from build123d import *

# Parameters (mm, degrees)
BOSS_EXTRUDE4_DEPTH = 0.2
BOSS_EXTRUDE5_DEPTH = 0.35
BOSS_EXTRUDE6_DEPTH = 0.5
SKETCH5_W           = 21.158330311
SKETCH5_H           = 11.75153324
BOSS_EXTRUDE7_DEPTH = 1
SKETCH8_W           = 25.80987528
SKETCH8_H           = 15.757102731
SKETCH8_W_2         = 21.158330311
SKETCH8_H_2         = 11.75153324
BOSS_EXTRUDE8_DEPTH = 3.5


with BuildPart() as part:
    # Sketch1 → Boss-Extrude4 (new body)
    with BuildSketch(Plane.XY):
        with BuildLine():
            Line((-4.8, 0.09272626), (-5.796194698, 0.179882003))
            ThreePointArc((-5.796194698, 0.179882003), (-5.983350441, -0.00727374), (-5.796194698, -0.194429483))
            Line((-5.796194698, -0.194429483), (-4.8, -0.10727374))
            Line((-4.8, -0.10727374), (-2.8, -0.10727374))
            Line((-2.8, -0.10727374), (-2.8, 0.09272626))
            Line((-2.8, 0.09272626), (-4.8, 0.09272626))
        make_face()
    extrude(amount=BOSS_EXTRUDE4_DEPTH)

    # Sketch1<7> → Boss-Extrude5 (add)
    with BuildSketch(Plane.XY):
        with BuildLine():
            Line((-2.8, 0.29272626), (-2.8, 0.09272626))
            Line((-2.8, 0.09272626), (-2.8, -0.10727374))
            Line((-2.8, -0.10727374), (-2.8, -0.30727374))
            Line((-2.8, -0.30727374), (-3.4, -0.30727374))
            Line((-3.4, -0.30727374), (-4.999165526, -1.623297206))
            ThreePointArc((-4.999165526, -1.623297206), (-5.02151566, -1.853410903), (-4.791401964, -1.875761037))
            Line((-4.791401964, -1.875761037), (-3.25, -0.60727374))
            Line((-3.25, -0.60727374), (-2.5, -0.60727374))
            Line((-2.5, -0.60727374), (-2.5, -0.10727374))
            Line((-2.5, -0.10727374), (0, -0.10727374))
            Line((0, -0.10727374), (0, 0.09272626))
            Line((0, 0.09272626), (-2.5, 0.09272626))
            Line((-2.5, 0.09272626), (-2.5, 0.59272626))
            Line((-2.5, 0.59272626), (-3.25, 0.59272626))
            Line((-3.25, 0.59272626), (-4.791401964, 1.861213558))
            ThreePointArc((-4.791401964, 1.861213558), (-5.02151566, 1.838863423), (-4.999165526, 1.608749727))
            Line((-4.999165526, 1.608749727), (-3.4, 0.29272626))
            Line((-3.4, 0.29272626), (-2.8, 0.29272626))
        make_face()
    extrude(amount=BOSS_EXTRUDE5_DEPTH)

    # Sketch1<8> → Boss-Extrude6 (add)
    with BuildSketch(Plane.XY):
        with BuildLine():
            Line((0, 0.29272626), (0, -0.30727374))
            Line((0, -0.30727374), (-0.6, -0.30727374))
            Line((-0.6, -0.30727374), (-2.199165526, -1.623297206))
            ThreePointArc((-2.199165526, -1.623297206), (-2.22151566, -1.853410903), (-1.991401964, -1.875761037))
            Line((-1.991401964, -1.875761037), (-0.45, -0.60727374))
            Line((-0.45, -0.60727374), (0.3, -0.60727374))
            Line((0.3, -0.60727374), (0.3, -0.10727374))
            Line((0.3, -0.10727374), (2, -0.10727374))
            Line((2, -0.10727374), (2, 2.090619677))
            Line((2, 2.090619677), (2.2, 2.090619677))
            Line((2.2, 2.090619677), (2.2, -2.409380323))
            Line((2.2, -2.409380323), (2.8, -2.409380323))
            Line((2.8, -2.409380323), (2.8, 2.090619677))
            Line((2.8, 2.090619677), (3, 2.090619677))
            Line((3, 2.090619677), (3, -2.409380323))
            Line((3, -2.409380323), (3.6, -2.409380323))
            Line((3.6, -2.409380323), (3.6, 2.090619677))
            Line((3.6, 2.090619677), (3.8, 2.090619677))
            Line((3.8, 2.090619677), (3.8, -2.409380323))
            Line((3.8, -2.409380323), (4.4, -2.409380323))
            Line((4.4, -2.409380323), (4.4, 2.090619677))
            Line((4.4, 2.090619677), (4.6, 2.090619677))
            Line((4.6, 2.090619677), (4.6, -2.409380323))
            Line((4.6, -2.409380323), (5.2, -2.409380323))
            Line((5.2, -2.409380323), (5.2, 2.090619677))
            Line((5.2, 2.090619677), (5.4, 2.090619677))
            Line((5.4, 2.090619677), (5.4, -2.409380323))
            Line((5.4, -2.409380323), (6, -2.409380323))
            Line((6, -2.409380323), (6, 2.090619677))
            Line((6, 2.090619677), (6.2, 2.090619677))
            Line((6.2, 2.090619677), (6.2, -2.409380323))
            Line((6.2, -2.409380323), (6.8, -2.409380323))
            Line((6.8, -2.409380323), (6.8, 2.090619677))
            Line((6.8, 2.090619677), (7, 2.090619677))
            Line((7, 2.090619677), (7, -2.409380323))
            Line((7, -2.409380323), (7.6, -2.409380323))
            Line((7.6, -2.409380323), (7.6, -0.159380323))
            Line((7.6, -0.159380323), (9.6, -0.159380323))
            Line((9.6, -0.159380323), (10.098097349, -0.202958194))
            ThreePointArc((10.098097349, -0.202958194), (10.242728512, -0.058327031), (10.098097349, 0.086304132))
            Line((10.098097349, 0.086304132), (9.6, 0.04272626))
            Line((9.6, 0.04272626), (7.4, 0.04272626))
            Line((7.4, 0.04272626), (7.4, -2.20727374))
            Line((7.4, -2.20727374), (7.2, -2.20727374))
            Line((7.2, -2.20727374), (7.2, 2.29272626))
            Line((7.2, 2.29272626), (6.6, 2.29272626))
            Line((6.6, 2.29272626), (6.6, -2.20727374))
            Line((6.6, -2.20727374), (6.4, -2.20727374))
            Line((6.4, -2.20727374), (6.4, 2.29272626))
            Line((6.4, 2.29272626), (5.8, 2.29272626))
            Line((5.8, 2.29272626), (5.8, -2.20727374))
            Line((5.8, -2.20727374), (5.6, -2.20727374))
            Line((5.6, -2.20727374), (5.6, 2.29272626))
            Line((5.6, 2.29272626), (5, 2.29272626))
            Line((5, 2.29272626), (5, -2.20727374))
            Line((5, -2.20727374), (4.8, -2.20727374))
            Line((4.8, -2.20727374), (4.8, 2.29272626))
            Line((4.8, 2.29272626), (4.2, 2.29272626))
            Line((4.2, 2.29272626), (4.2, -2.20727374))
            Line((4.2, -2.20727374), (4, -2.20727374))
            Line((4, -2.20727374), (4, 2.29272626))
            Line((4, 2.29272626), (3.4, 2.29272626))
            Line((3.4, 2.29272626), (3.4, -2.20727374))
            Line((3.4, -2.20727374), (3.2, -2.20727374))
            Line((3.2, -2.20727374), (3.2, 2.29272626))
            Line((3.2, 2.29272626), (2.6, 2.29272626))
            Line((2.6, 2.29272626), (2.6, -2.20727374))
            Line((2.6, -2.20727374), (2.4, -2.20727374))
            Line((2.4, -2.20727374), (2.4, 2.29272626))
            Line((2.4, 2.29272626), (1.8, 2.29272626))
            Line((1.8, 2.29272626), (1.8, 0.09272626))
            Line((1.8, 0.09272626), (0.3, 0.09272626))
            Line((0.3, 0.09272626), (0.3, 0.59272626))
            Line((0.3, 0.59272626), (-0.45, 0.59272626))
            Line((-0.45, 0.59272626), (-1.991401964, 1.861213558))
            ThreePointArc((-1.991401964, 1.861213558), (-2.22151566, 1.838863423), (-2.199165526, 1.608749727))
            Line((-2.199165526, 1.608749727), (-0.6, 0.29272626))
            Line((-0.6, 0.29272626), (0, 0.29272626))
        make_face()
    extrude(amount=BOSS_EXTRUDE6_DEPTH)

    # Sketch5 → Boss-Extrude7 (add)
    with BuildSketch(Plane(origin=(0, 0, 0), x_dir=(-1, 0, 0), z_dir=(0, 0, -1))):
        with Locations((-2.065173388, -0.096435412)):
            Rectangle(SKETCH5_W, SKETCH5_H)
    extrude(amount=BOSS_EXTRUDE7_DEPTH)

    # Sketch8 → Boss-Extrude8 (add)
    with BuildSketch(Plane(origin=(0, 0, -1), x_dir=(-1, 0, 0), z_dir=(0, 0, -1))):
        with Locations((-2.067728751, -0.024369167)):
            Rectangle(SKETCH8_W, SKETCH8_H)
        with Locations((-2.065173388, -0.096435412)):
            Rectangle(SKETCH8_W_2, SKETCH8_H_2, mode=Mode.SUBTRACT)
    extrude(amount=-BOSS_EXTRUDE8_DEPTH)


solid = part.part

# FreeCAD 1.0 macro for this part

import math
import FreeCAD as App
import Part
import Sketcher
from FreeCAD import Vector
Q = App.Units.Quantity

doc = App.newDocument("Part")
body = doc.addObject("PartDesign::Body", "Body")

# Sketch on XY plane
sketch1 = body.newObject("Sketcher::SketchObject", "Sketch")
sketch1.AttachmentSupport = (doc.getObject("XY_Plane"), [""])
sketch1.MapMode = "FlatFace"
sketch1.addGeometry([
    Part.LineSegment(Vector(-4.8, 0.09, 0), Vector(-5.8, 0.18, 0)),  # 0
    Part.ArcOfCircle(Part.Circle(Vector(-5.8, -0.01, 0), Vector(0, 0, 1), 0.19), math.radians(90), math.radians(270)),  # 1
    Part.LineSegment(Vector(-5.8, -0.19, 0), Vector(-4.8, -0.11, 0)),  # 2
    Part.LineSegment(Vector(-4.8, -0.11, 0), Vector(-2.8, -0.11, 0)),  # 3
    Part.LineSegment(Vector(-2.8, -0.11, 0), Vector(-2.8, 0.09, 0)),  # 4
    Part.LineSegment(Vector(-2.8, 0.09, 0), Vector(-4.8, 0.09, 0)),  # 5
], False)
sketch1.addConstraint([
    Sketcher.Constraint("Coincident", 0, 2, 1, 1),
    Sketcher.Constraint("Coincident", 1, 2, 2, 1),
    Sketcher.Constraint("Coincident", 2, 2, 3, 1),
    Sketcher.Constraint("Coincident", 3, 2, 4, 1),
    Sketcher.Constraint("Coincident", 4, 2, 5, 1),
    Sketcher.Constraint("Coincident", 5, 2, 0, 1),
    Sketcher.Constraint("Horizontal", 3),
    Sketcher.Constraint("Vertical", 4),
    Sketcher.Constraint("Horizontal", 5),
    Sketcher.Constraint("Vertical", 1, 3, 0, 2),
    Sketcher.Constraint("Vertical", 0, 2, 1, 2),
    Sketcher.Constraint("Vertical", 2, 2, 5, 2),
    Sketcher.Constraint("Equal", 0, 2),
    Sketcher.Constraint("DistanceX", 3, 1, 3, 2, Q("2 mm")),
    Sketcher.Constraint("Angle", 0, Q("175 deg")),
    Sketcher.Constraint("Distance", 0, Q("1 mm")),
    Sketcher.Constraint("DistanceY", 4, 1, 4, 2, Q("0.2 mm")),
    Sketcher.Constraint("DistanceX", 2, 2, -1, 1, Q("4.8 mm")),
    Sketcher.Constraint("DistanceY", 1, 2, -1, 1, Q("0.194429 mm")),
])
pad1 = body.newObject("PartDesign::Pad", "Pad")
pad1.Profile = sketch1
pad1.Length = 0.2

# Sketch on XY plane
sketch2 = body.newObject("Sketcher::SketchObject", "Sketch001")
sketch2.AttachmentSupport = (doc.getObject("XY_Plane"), [""])
sketch2.MapMode = "FlatFace"
sketch2.addGeometry([
    Part.LineSegment(Vector(-2.8, 0.292726, 0), Vector(-2.8, -0.307274, 0)),  # 0
    Part.LineSegment(Vector(-2.8, -0.307274, 0), Vector(-3.4, -0.307274, 0)),  # 1
    Part.LineSegment(Vector(-3.4, -0.307274, 0), Vector(-4.999166, -1.623297, 0)),  # 2
    Part.ArcOfCircle(Part.Circle(Vector(-4.895284, -1.749529, 0), Vector(0, 0, 1), 0.163481), math.radians(129.452463), math.radians(309.452463)),  # 3
    Part.LineSegment(Vector(-4.791402, -1.875761, 0), Vector(-3.25, -0.607274, 0)),  # 4
    Part.LineSegment(Vector(-3.25, -0.607274, 0), Vector(-2.5, -0.607274, 0)),  # 5
    Part.LineSegment(Vector(-2.5, -0.607274, 0), Vector(-2.5, -0.107274, 0)),  # 6
    Part.LineSegment(Vector(-2.5, -0.107274, 0), Vector(0, -0.107274, 0)),  # 7
    Part.LineSegment(Vector(0, -0.107274, 0), Vector(0, 0.092726, 0)),  # 8
    Part.LineSegment(Vector(0, 0.092726, 0), Vector(-2.5, 0.092726, 0)),  # 9
    Part.LineSegment(Vector(-2.5, 0.092726, 0), Vector(-2.5, 0.592726, 0)),  # 10
    Part.LineSegment(Vector(-2.5, 0.592726, 0), Vector(-3.25, 0.592726, 0)),  # 11
    Part.LineSegment(Vector(-3.25, 0.592726, 0), Vector(-4.791402, 1.861214, 0)),  # 12
    Part.ArcOfCircle(Part.Circle(Vector(-4.895284, 1.734982, 0), Vector(0, 0, 1), 0.163481), math.radians(50.547537), math.radians(230.547537)),  # 13
    Part.LineSegment(Vector(-4.999166, 1.60875, 0), Vector(-3.4, 0.292726, 0)),  # 14
    Part.LineSegment(Vector(-3.4, 0.292726, 0), Vector(-2.8, 0.292726, 0)),  # 15
], False)
sketch2.addConstraint([
    Sketcher.Constraint("Coincident", 0, 2, 1, 1),
    Sketcher.Constraint("Coincident", 1, 2, 2, 1),
    Sketcher.Constraint("Coincident", 2, 2, 3, 1),
    Sketcher.Constraint("Coincident", 3, 2, 4, 1),
    Sketcher.Constraint("Coincident", 4, 2, 5, 1),
    Sketcher.Constraint("Coincident", 5, 2, 6, 1),
    Sketcher.Constraint("Coincident", 6, 2, 7, 1),
    Sketcher.Constraint("Coincident", 7, 2, 8, 1),
    Sketcher.Constraint("Coincident", 8, 2, 9, 1),
    Sketcher.Constraint("Coincident", 9, 2, 10, 1),
    Sketcher.Constraint("Coincident", 10, 2, 11, 1),
    Sketcher.Constraint("Coincident", 11, 2, 12, 1),
    Sketcher.Constraint("Coincident", 12, 2, 13, 1),
    Sketcher.Constraint("Coincident", 13, 2, 14, 1),
    Sketcher.Constraint("Coincident", 14, 2, 15, 1),
    Sketcher.Constraint("Coincident", 15, 2, 0, 1),
    Sketcher.Constraint("Vertical", 0),
    Sketcher.Constraint("Horizontal", 1),
    Sketcher.Constraint("Horizontal", 5),
    Sketcher.Constraint("Vertical", 6),
    Sketcher.Constraint("Horizontal", 7),
    Sketcher.Constraint("Vertical", 8),
    Sketcher.Constraint("Horizontal", 9),
    Sketcher.Constraint("Vertical", 10),
    Sketcher.Constraint("Horizontal", 11),
    Sketcher.Constraint("Horizontal", 15),
    Sketcher.Constraint("PointOnObject", 7, 2, -2),
    Sketcher.Constraint("DistanceX", 1, 2, 1, 1, Q("0.6 mm")),
    Sketcher.Constraint("DistanceX", 7, 1, 7, 2, Q("2.5 mm")),
    Sketcher.Constraint("DistanceX", 9, 2, 9, 1, Q("2.5 mm")),
    Sketcher.Constraint("DistanceX", 15, 1, 15, 2, Q("0.6 mm")),
    Sketcher.Constraint("DistanceY", 0, 2, 0, 1, Q("0.6 mm")),
    Sketcher.Constraint("DistanceY", 6, 1, 6, 2, Q("0.5 mm")),
    Sketcher.Constraint("DistanceY", 8, 1, 8, 2, Q("0.2 mm")),
    Sketcher.Constraint("DistanceY", 10, 1, 10, 2, Q("0.5 mm")),
    Sketcher.Constraint("DistanceX", 5, 1, 5, 2, Q("0.75 mm")),
    Sketcher.Constraint("DistanceX", 11, 2, 11, 1, Q("0.75 mm")),
    Sketcher.Constraint("DistanceX", 0, 2, -1, 1, Q("2.8 mm")),
    Sketcher.Constraint("DistanceY", 4, 2, 1, 2, Q("0.3 mm")),
    Sketcher.Constraint("Radius", 3, Q("0.163481 mm")),
    Sketcher.Constraint("Radius", 13, Q("0.163481 mm")),
    Sketcher.Constraint("DistanceX", 3, 2, -1, 1, Q("4.791402 mm")),
    Sketcher.Constraint("DistanceX", 12, 2, -1, 1, Q("4.791402 mm")),
    Sketcher.Constraint("Distance", 2, Q("2.07105 mm")),
    Sketcher.Constraint("Distance", 4, Q("1.996241 mm")),
    Sketcher.Constraint("Distance", 12, Q("1.996241 mm")),
    Sketcher.Constraint("Distance", 14, Q("2.07105 mm")),
    Sketcher.Constraint("DistanceY", 3, 3, -1, 1, Q("1.749529 mm")),
    Sketcher.Constraint("DistanceY", -1, 1, 13, 3, Q("1.734982 mm")),
    Sketcher.Constraint("DistanceY", 3, 2, -1, 1, Q("1.875761 mm")),
])
pad2 = body.newObject("PartDesign::Pad", "Pad001")
pad2.Profile = sketch2
pad2.Length = 0.35

# Sketch on XY plane
sketch3 = body.newObject("Sketcher::SketchObject", "Sketch002")
sketch3.AttachmentSupport = (doc.getObject("XY_Plane"), [""])
sketch3.MapMode = "FlatFace"
sketch3.addGeometry([
    Part.LineSegment(Vector(0, 0.29, 0), Vector(0, -0.31, 0)),  # 0
    Part.LineSegment(Vector(0, -0.31, 0), Vector(-0.6, -0.31, 0)),  # 1
    Part.LineSegment(Vector(-0.6, -0.31, 0), Vector(-2.2, -1.62, 0)),  # 2
    Part.ArcOfCircle(Part.Circle(Vector(-2.1, -1.75, 0), Vector(0, 0, 1), 0.16), math.radians(129), math.radians(309)),  # 3
    Part.LineSegment(Vector(-1.99, -1.88, 0), Vector(-0.45, -0.61, 0)),  # 4
    Part.LineSegment(Vector(-0.45, -0.61, 0), Vector(0.3, -0.61, 0)),  # 5
    Part.LineSegment(Vector(0.3, -0.61, 0), Vector(0.3, -0.11, 0)),  # 6
    Part.LineSegment(Vector(0.3, -0.11, 0), Vector(2, -0.11, 0)),  # 7
    Part.LineSegment(Vector(2, -0.11, 0), Vector(2, 2.09, 0)),  # 8
    Part.LineSegment(Vector(2, 2.09, 0), Vector(2.2, 2.09, 0)),  # 9
    Part.LineSegment(Vector(2.2, 2.09, 0), Vector(2.2, -2.41, 0)),  # 10
    Part.LineSegment(Vector(2.2, -2.41, 0), Vector(2.8, -2.41, 0)),  # 11
    Part.LineSegment(Vector(2.8, -2.41, 0), Vector(2.8, 2.09, 0)),  # 12
    Part.LineSegment(Vector(2.8, 2.09, 0), Vector(3, 2.09, 0)),  # 13
    Part.LineSegment(Vector(3, 2.09, 0), Vector(3, -2.41, 0)),  # 14
    Part.LineSegment(Vector(3, -2.41, 0), Vector(3.6, -2.41, 0)),  # 15
    Part.LineSegment(Vector(3.6, -2.41, 0), Vector(3.6, 2.09, 0)),  # 16
    Part.LineSegment(Vector(3.6, 2.09, 0), Vector(3.8, 2.09, 0)),  # 17
    Part.LineSegment(Vector(3.8, 2.09, 0), Vector(3.8, -2.41, 0)),  # 18
    Part.LineSegment(Vector(3.8, -2.41, 0), Vector(4.4, -2.41, 0)),  # 19
    Part.LineSegment(Vector(4.4, -2.41, 0), Vector(4.4, 2.09, 0)),  # 20
    Part.LineSegment(Vector(4.4, 2.09, 0), Vector(4.6, 2.09, 0)),  # 21
    Part.LineSegment(Vector(4.6, 2.09, 0), Vector(4.6, -2.41, 0)),  # 22
    Part.LineSegment(Vector(4.6, -2.41, 0), Vector(5.2, -2.41, 0)),  # 23
    Part.LineSegment(Vector(5.2, -2.41, 0), Vector(5.2, 2.09, 0)),  # 24
    Part.LineSegment(Vector(5.2, 2.09, 0), Vector(5.4, 2.09, 0)),  # 25
    Part.LineSegment(Vector(5.4, 2.09, 0), Vector(5.4, -2.41, 0)),  # 26
    Part.LineSegment(Vector(5.4, -2.41, 0), Vector(6, -2.41, 0)),  # 27
    Part.LineSegment(Vector(6, -2.41, 0), Vector(6, 2.09, 0)),  # 28
    Part.LineSegment(Vector(6, 2.09, 0), Vector(6.2, 2.09, 0)),  # 29
    Part.LineSegment(Vector(6.2, 2.09, 0), Vector(6.2, -2.41, 0)),  # 30
    Part.LineSegment(Vector(6.2, -2.41, 0), Vector(6.8, -2.41, 0)),  # 31
    Part.LineSegment(Vector(6.8, -2.41, 0), Vector(6.8, 2.09, 0)),  # 32
    Part.LineSegment(Vector(6.8, 2.09, 0), Vector(7, 2.09, 0)),  # 33
    Part.LineSegment(Vector(7, 2.09, 0), Vector(7, -2.41, 0)),  # 34
    Part.LineSegment(Vector(7, -2.41, 0), Vector(7.6, -2.41, 0)),  # 35
    Part.LineSegment(Vector(7.6, -2.41, 0), Vector(7.6, -0.16, 0)),  # 36
    Part.LineSegment(Vector(7.6, -0.16, 0), Vector(9.6, -0.16, 0)),  # 37
    Part.LineSegment(Vector(9.6, -0.16, 0), Vector(10.1, -0.2, 0)),  # 38
    Part.ArcOfCircle(Part.Circle(Vector(10.1, -0.06, 0), Vector(0, 0, 1), 0.14), math.radians(-90), math.radians(90)),  # 39
    Part.LineSegment(Vector(10.1, 0.09, 0), Vector(9.6, 0.04, 0)),  # 40
    Part.LineSegment(Vector(9.6, 0.04, 0), Vector(7.4, 0.04, 0)),  # 41
    Part.LineSegment(Vector(7.4, 0.04, 0), Vector(7.4, -2.21, 0)),  # 42
    Part.LineSegment(Vector(7.4, -2.21, 0), Vector(7.2, -2.21, 0)),  # 43
    Part.LineSegment(Vector(7.2, -2.21, 0), Vector(7.2, 2.29, 0)),  # 44
    Part.LineSegment(Vector(7.2, 2.29, 0), Vector(6.6, 2.29, 0)),  # 45
    Part.LineSegment(Vector(6.6, 2.29, 0), Vector(6.6, -2.21, 0)),  # 46
    Part.LineSegment(Vector(6.6, -2.21, 0), Vector(6.4, -2.21, 0)),  # 47
    Part.LineSegment(Vector(6.4, -2.21, 0), Vector(6.4, 2.29, 0)),  # 48
    Part.LineSegment(Vector(6.4, 2.29, 0), Vector(5.8, 2.29, 0)),  # 49
    Part.LineSegment(Vector(5.8, 2.29, 0), Vector(5.8, -2.21, 0)),  # 50
    Part.LineSegment(Vector(5.8, -2.21, 0), Vector(5.6, -2.21, 0)),  # 51
    Part.LineSegment(Vector(5.6, -2.21, 0), Vector(5.6, 2.29, 0)),  # 52
    Part.LineSegment(Vector(5.6, 2.29, 0), Vector(5, 2.29, 0)),  # 53
    Part.LineSegment(Vector(5, 2.29, 0), Vector(5, -2.21, 0)),  # 54
    Part.LineSegment(Vector(5, -2.21, 0), Vector(4.8, -2.21, 0)),  # 55
    Part.LineSegment(Vector(4.8, -2.21, 0), Vector(4.8, 2.29, 0)),  # 56
    Part.LineSegment(Vector(4.8, 2.29, 0), Vector(4.2, 2.29, 0)),  # 57
    Part.LineSegment(Vector(4.2, 2.29, 0), Vector(4.2, -2.21, 0)),  # 58
    Part.LineSegment(Vector(4.2, -2.21, 0), Vector(4, -2.21, 0)),  # 59
    Part.LineSegment(Vector(4, -2.21, 0), Vector(4, 2.29, 0)),  # 60
    Part.LineSegment(Vector(4, 2.29, 0), Vector(3.4, 2.29, 0)),  # 61
    Part.LineSegment(Vector(3.4, 2.29, 0), Vector(3.4, -2.21, 0)),  # 62
    Part.LineSegment(Vector(3.4, -2.21, 0), Vector(3.2, -2.21, 0)),  # 63
    Part.LineSegment(Vector(3.2, -2.21, 0), Vector(3.2, 2.29, 0)),  # 64
    Part.LineSegment(Vector(3.2, 2.29, 0), Vector(2.6, 2.29, 0)),  # 65
    Part.LineSegment(Vector(2.6, 2.29, 0), Vector(2.6, -2.21, 0)),  # 66
    Part.LineSegment(Vector(2.6, -2.21, 0), Vector(2.4, -2.21, 0)),  # 67
    Part.LineSegment(Vector(2.4, -2.21, 0), Vector(2.4, 2.29, 0)),  # 68
    Part.LineSegment(Vector(2.4, 2.29, 0), Vector(1.8, 2.29, 0)),  # 69
    Part.LineSegment(Vector(1.8, 2.29, 0), Vector(1.8, 0.09, 0)),  # 70
    Part.LineSegment(Vector(1.8, 0.09, 0), Vector(0.3, 0.09, 0)),  # 71
    Part.LineSegment(Vector(0.3, 0.09, 0), Vector(0.3, 0.59, 0)),  # 72
    Part.LineSegment(Vector(0.3, 0.59, 0), Vector(-0.45, 0.59, 0)),  # 73
    Part.LineSegment(Vector(-0.45, 0.59, 0), Vector(-1.99, 1.86, 0)),  # 74
    Part.ArcOfCircle(Part.Circle(Vector(-2.1, 1.73, 0), Vector(0, 0, 1), 0.16), math.radians(51), math.radians(231)),  # 75
    Part.LineSegment(Vector(-2.2, 1.61, 0), Vector(-0.6, 0.29, 0)),  # 76
    Part.LineSegment(Vector(-0.6, 0.29, 0), Vector(0, 0.29, 0)),  # 77
], False)
sketch3.addConstraint([
    Sketcher.Constraint("Coincident", 0, 2, 1, 1),
    Sketcher.Constraint("Coincident", 1, 2, 2, 1),
    Sketcher.Constraint("Tangent", 2, 2, 3, 1),
    Sketcher.Constraint("Tangent", 3, 2, 4, 1),
    Sketcher.Constraint("Coincident", 4, 2, 5, 1),
    Sketcher.Constraint("Coincident", 5, 2, 6, 1),
    Sketcher.Constraint("Coincident", 6, 2, 7, 1),
    Sketcher.Constraint("Coincident", 7, 2, 8, 1),
    Sketcher.Constraint("Coincident", 8, 2, 9, 1),
    Sketcher.Constraint("Coincident", 9, 2, 10, 1),
    Sketcher.Constraint("Coincident", 10, 2, 11, 1),
    Sketcher.Constraint("Coincident", 11, 2, 12, 1),
    Sketcher.Constraint("Coincident", 12, 2, 13, 1),
    Sketcher.Constraint("Coincident", 13, 2, 14, 1),
    Sketcher.Constraint("Coincident", 14, 2, 15, 1),
    Sketcher.Constraint("Coincident", 15, 2, 16, 1),
    Sketcher.Constraint("Coincident", 16, 2, 17, 1),
    Sketcher.Constraint("Coincident", 17, 2, 18, 1),
    Sketcher.Constraint("Coincident", 18, 2, 19, 1),
    Sketcher.Constraint("Coincident", 19, 2, 20, 1),
    Sketcher.Constraint("Coincident", 20, 2, 21, 1),
    Sketcher.Constraint("Coincident", 21, 2, 22, 1),
    Sketcher.Constraint("Coincident", 22, 2, 23, 1),
    Sketcher.Constraint("Coincident", 23, 2, 24, 1),
    Sketcher.Constraint("Coincident", 24, 2, 25, 1),
    Sketcher.Constraint("Coincident", 25, 2, 26, 1),
    Sketcher.Constraint("Coincident", 26, 2, 27, 1),
    Sketcher.Constraint("Coincident", 27, 2, 28, 1),
    Sketcher.Constraint("Coincident", 28, 2, 29, 1),
    Sketcher.Constraint("Coincident", 29, 2, 30, 1),
    Sketcher.Constraint("Coincident", 30, 2, 31, 1),
    Sketcher.Constraint("Coincident", 31, 2, 32, 1),
    Sketcher.Constraint("Coincident", 32, 2, 33, 1),
    Sketcher.Constraint("Coincident", 33, 2, 34, 1),
    Sketcher.Constraint("Coincident", 34, 2, 35, 1),
    Sketcher.Constraint("Coincident", 35, 2, 36, 1),
    Sketcher.Constraint("Coincident", 36, 2, 37, 1),
    Sketcher.Constraint("Coincident", 37, 2, 38, 1),
    Sketcher.Constraint("Coincident", 38, 2, 39, 1),
    Sketcher.Constraint("Coincident", 39, 2, 40, 1),
    Sketcher.Constraint("Coincident", 40, 2, 41, 1),
    Sketcher.Constraint("Coincident", 41, 2, 42, 1),
    Sketcher.Constraint("Coincident", 42, 2, 43, 1),
    Sketcher.Constraint("Coincident", 43, 2, 44, 1),
    Sketcher.Constraint("Coincident", 44, 2, 45, 1),
    Sketcher.Constraint("Coincident", 45, 2, 46, 1),
    Sketcher.Constraint("Coincident", 46, 2, 47, 1),
    Sketcher.Constraint("Coincident", 47, 2, 48, 1),
    Sketcher.Constraint("Coincident", 48, 2, 49, 1),
    Sketcher.Constraint("Coincident", 49, 2, 50, 1),
    Sketcher.Constraint("Coincident", 50, 2, 51, 1),
    Sketcher.Constraint("Coincident", 51, 2, 52, 1),
    Sketcher.Constraint("Coincident", 52, 2, 53, 1),
    Sketcher.Constraint("Coincident", 53, 2, 54, 1),
    Sketcher.Constraint("Coincident", 54, 2, 55, 1),
    Sketcher.Constraint("Coincident", 55, 2, 56, 1),
    Sketcher.Constraint("Coincident", 56, 2, 57, 1),
    Sketcher.Constraint("Coincident", 57, 2, 58, 1),
    Sketcher.Constraint("Coincident", 58, 2, 59, 1),
    Sketcher.Constraint("Coincident", 59, 2, 60, 1),
    Sketcher.Constraint("Coincident", 60, 2, 61, 1),
    Sketcher.Constraint("Coincident", 61, 2, 62, 1),
    Sketcher.Constraint("Coincident", 62, 2, 63, 1),
    Sketcher.Constraint("Coincident", 63, 2, 64, 1),
    Sketcher.Constraint("Coincident", 64, 2, 65, 1),
    Sketcher.Constraint("Coincident", 65, 2, 66, 1),
    Sketcher.Constraint("Coincident", 66, 2, 67, 1),
    Sketcher.Constraint("Coincident", 67, 2, 68, 1),
    Sketcher.Constraint("Coincident", 68, 2, 69, 1),
    Sketcher.Constraint("Coincident", 69, 2, 70, 1),
    Sketcher.Constraint("Coincident", 70, 2, 71, 1),
    Sketcher.Constraint("Coincident", 71, 2, 72, 1),
    Sketcher.Constraint("Coincident", 72, 2, 73, 1),
    Sketcher.Constraint("Coincident", 73, 2, 74, 1),
    Sketcher.Constraint("Tangent", 74, 2, 75, 1),
    Sketcher.Constraint("Tangent", 75, 2, 76, 1),
    Sketcher.Constraint("Coincident", 76, 2, 77, 1),
    Sketcher.Constraint("Coincident", 77, 2, 0, 1),
    Sketcher.Constraint("Vertical", 0),
    Sketcher.Constraint("Horizontal", 1),
    Sketcher.Constraint("Horizontal", 5),
    Sketcher.Constraint("Vertical", 6),
    Sketcher.Constraint("Horizontal", 7),
    Sketcher.Constraint("Vertical", 8),
    Sketcher.Constraint("Horizontal", 9),
    Sketcher.Constraint("Vertical", 10),
    Sketcher.Constraint("Horizontal", 11),
    Sketcher.Constraint("Vertical", 12),
    Sketcher.Constraint("Horizontal", 13),
    Sketcher.Constraint("Vertical", 14),
    Sketcher.Constraint("Horizontal", 15),
    Sketcher.Constraint("Vertical", 16),
    Sketcher.Constraint("Horizontal", 17),
    Sketcher.Constraint("Vertical", 18),
    Sketcher.Constraint("Horizontal", 19),
    Sketcher.Constraint("Vertical", 20),
    Sketcher.Constraint("Horizontal", 21),
    Sketcher.Constraint("Vertical", 22),
    Sketcher.Constraint("Horizontal", 23),
    Sketcher.Constraint("Vertical", 24),
    Sketcher.Constraint("Horizontal", 25),
    Sketcher.Constraint("Vertical", 26),
    Sketcher.Constraint("Horizontal", 27),
    Sketcher.Constraint("Vertical", 28),
    Sketcher.Constraint("Horizontal", 29),
    Sketcher.Constraint("Vertical", 30),
    Sketcher.Constraint("Horizontal", 31),
    Sketcher.Constraint("Vertical", 32),
    Sketcher.Constraint("Horizontal", 33),
    Sketcher.Constraint("Vertical", 34),
    Sketcher.Constraint("Horizontal", 35),
    Sketcher.Constraint("Vertical", 36),
    Sketcher.Constraint("Horizontal", 37),
    Sketcher.Constraint("Horizontal", 41),
    Sketcher.Constraint("Vertical", 42),
    Sketcher.Constraint("Horizontal", 43),
    Sketcher.Constraint("Vertical", 44),
    Sketcher.Constraint("Horizontal", 45),
    Sketcher.Constraint("Vertical", 46),
    Sketcher.Constraint("Horizontal", 47),
    Sketcher.Constraint("Vertical", 48),
    Sketcher.Constraint("Horizontal", 49),
    Sketcher.Constraint("Vertical", 50),
    Sketcher.Constraint("Horizontal", 51),
    Sketcher.Constraint("Vertical", 52),
    Sketcher.Constraint("Horizontal", 53),
    Sketcher.Constraint("Vertical", 54),
    Sketcher.Constraint("Horizontal", 55),
    Sketcher.Constraint("Vertical", 56),
    Sketcher.Constraint("Horizontal", 57),
    Sketcher.Constraint("Vertical", 58),
    Sketcher.Constraint("Horizontal", 59),
    Sketcher.Constraint("Vertical", 60),
    Sketcher.Constraint("Horizontal", 61),
    Sketcher.Constraint("Vertical", 62),
    Sketcher.Constraint("Horizontal", 63),
    Sketcher.Constraint("Vertical", 64),
    Sketcher.Constraint("Horizontal", 65),
    Sketcher.Constraint("Vertical", 66),
    Sketcher.Constraint("Horizontal", 67),
    Sketcher.Constraint("Vertical", 68),
    Sketcher.Constraint("Horizontal", 69),
    Sketcher.Constraint("Vertical", 70),
    Sketcher.Constraint("Horizontal", 71),
    Sketcher.Constraint("Vertical", 72),
    Sketcher.Constraint("Horizontal", 73),
    Sketcher.Constraint("Horizontal", 77),
    Sketcher.Constraint("Equal", 3, 75),
    Sketcher.Constraint("PointOnObject", 0, 2, -2),
    Sketcher.Constraint("Parallel", 2, 4),
    Sketcher.Constraint("Parallel", 74, 76),
    Sketcher.Constraint("Horizontal", 9, 2, 12, 2),
    Sketcher.Constraint("Horizontal", 11, 2, 14, 2),
    Sketcher.Constraint("Horizontal", 13, 2, 16, 2),
    Sketcher.Constraint("Horizontal", 15, 2, 18, 2),
    Sketcher.Constraint("Horizontal", 17, 2, 20, 2),
    Sketcher.Constraint("Horizontal", 19, 2, 22, 2),
    Sketcher.Constraint("Horizontal", 21, 2, 24, 2),
    Sketcher.Constraint("Horizontal", 23, 2, 26, 2),
    Sketcher.Constraint("Horizontal", 25, 2, 28, 2),
    Sketcher.Constraint("Horizontal", 27, 2, 30, 2),
    Sketcher.Constraint("Horizontal", 29, 2, 32, 2),
    Sketcher.Constraint("Horizontal", 31, 2, 34, 2),
    Sketcher.Constraint("Horizontal", 43, 2, 46, 2),
    Sketcher.Constraint("Horizontal", 45, 2, 48, 2),
    Sketcher.Constraint("Horizontal", 47, 2, 50, 2),
    Sketcher.Constraint("Horizontal", 49, 2, 52, 2),
    Sketcher.Constraint("Horizontal", 51, 2, 54, 2),
    Sketcher.Constraint("Horizontal", 53, 2, 56, 2),
    Sketcher.Constraint("Horizontal", 55, 2, 58, 2),
    Sketcher.Constraint("Horizontal", 57, 2, 60, 2),
    Sketcher.Constraint("Horizontal", 59, 2, 62, 2),
    Sketcher.Constraint("Horizontal", 61, 2, 64, 2),
    Sketcher.Constraint("Horizontal", 63, 2, 66, 2),
    Sketcher.Constraint("Horizontal", 65, 2, 68, 2),
    Sketcher.Constraint("Vertical", 3, 3, 75, 3),
    Sketcher.Constraint("Vertical", 39, 3, 38, 2),
    Sketcher.Constraint("Vertical", 38, 2, 39, 2),
    Sketcher.Constraint("Vertical", 37, 2, 40, 2),
    Sketcher.Constraint("Vertical", 6, 2, 71, 2),
    Sketcher.Constraint("Vertical", 4, 2, 73, 2),
    Sketcher.Constraint("Vertical", 3, 2, 74, 2),
    Sketcher.Constraint("Vertical", 1, 2, 76, 2),
    Sketcher.Constraint("Equal", 1, 11),
    Sketcher.Constraint("Equal", 9, 13),
    Sketcher.Constraint("Equal", 11, 15),
    Sketcher.Constraint("Equal", 13, 17),
    Sketcher.Constraint("Equal", 15, 19),
    Sketcher.Constraint("Equal", 17, 21),
    Sketcher.Constraint("Equal", 19, 23),
    Sketcher.Constraint("Equal", 21, 25),
    Sketcher.Constraint("Equal", 23, 27),
    Sketcher.Constraint("Equal", 25, 29),
    Sketcher.Constraint("Equal", 27, 31),
    Sketcher.Constraint("Equal", 29, 33),
    Sketcher.Constraint("Equal", 31, 35),
    Sketcher.Constraint("Equal", 33, 43),
    Sketcher.Constraint("Equal", 35, 45),
    Sketcher.Constraint("Equal", 43, 47),
    Sketcher.Constraint("Equal", 45, 49),
    Sketcher.Constraint("Equal", 47, 51),
    Sketcher.Constraint("Equal", 49, 53),
    Sketcher.Constraint("Equal", 51, 55),
    Sketcher.Constraint("Equal", 53, 57),
    Sketcher.Constraint("Equal", 55, 59),
    Sketcher.Constraint("Equal", 57, 61),
    Sketcher.Constraint("Equal", 59, 63),
    Sketcher.Constraint("Equal", 61, 65),
    Sketcher.Constraint("Equal", 63, 67),
    Sketcher.Constraint("Equal", 65, 69),
    Sketcher.Constraint("Equal", 77, 0),
    Sketcher.Constraint("Equal", 36, 42),
    Sketcher.Constraint("Equal", 34, 44),
    Sketcher.Constraint("Equal", 41, 70),
    Sketcher.Constraint("Equal", 6, 72),
    Sketcher.Constraint("Equal", 38, 40),
    Sketcher.Constraint("DistanceX", 37, 1, 37, 2, Q("2 mm")),
    Sketcher.Constraint("Angle", 38, Q("-5 deg")),
    Sketcher.Constraint("DistanceX", 1, 2, 1, 1, Q("0.6 mm")),
    Sketcher.Constraint("DistanceX", 7, 1, 7, 2, Q("1.7 mm")),
    Sketcher.Constraint("DistanceX", 9, 1, 9, 2, Q("0.2 mm")),
    Sketcher.Constraint("DistanceX", 41, 2, 41, 1, Q("2.2 mm")),
    Sketcher.Constraint("DistanceY", 6, 1, 6, 2, Q("0.5 mm")),
    Sketcher.Constraint("DistanceY", 10, 2, 10, 1, Q("4.5 mm")),
    Sketcher.Constraint("DistanceX", -1, 1, 7, 2, Q("2 mm")),
    Sketcher.Constraint("Distance", 38, Q("0.5 mm")),
    Sketcher.Constraint("DistanceX", 5, 1, 5, 2, Q("0.75 mm")),
    Sketcher.Constraint("DistanceY", 36, 1, 36, 2, Q("2.25 mm")),
    Sketcher.Constraint("Radius", 3, Q("0.163481 mm")),
    Sketcher.Constraint("Radius", 39, Q("0.144631 mm")),
    Sketcher.Constraint("DistanceX", 3, 2, -1, 1, Q("1.991402 mm")),
    Sketcher.Constraint("Distance", 2, Q("2.07105 mm")),
    Sketcher.Constraint("DistanceY", 3, 3, -1, 1, Q("1.749529 mm")),
])
pad3 = body.newObject("PartDesign::Pad", "Pad002")
pad3.Profile = sketch3
pad3.Length = 0.5

# Sketch on XY plane
sketch4 = body.newObject("Sketcher::SketchObject", "Sketch003")
sketch4.AttachmentSupport = (doc.getObject("XY_Plane"), [""])
sketch4.MapMode = "FlatFace"
sketch4.addGeometry([
    Part.LineSegment(Vector(13, 6, 0), Vector(13, -6, 0)),
    Part.LineSegment(Vector(13, -6, 0), Vector(-9, -6, 0)),
    Part.LineSegment(Vector(-9, -6, 0), Vector(-9, 6, 0)),
    Part.LineSegment(Vector(-9, 6, 0), Vector(13, 6, 0)),
], False)
sketch4.addConstraint([
    Sketcher.Constraint("Coincident", 0, 2, 1, 1),
    Sketcher.Constraint("Coincident", 1, 2, 2, 1),
    Sketcher.Constraint("Coincident", 2, 2, 3, 1),
    Sketcher.Constraint("Coincident", 3, 2, 0, 1),
    Sketcher.Constraint("Vertical", 0),
    Sketcher.Constraint("Horizontal", 1),
    Sketcher.Constraint("Vertical", 2),
    Sketcher.Constraint("Horizontal", 3),
    Sketcher.Constraint("DistanceX", 1, 2, 1, 1, Q("21.15833 mm")),
    Sketcher.Constraint("DistanceY", 0, 2, 0, 1, Q("11.751533 mm")),
    Sketcher.Constraint("DistanceX", -1, 1, 0, 2, Q("12.644339 mm")),
    Sketcher.Constraint("DistanceY", -1, 1, 2, 2, Q("5.779331 mm")),
])
pad4 = body.newObject("PartDesign::Pad", "Pad003")
pad4.Profile = sketch4
pad4.Length = 1
pad4.Reversed = True

# Sketch on XY plane
sketch5 = body.newObject("Sketcher::SketchObject", "Sketch004")
sketch5.AttachmentSupport = (doc.getObject("XY_Plane"), [""])
sketch5.MapMode = "FlatFace"
sketch5.AttachmentOffset = App.Placement(Vector(0, 0, -1), App.Rotation())
sketch5.addGeometry([
    Part.LineSegment(Vector(15, 8, 0), Vector(15, -8, 0)),  # 0
    Part.LineSegment(Vector(15, -8, 0), Vector(-11, -8, 0)),  # 1
    Part.LineSegment(Vector(-11, -8, 0), Vector(-11, 8, 0)),  # 2
    Part.LineSegment(Vector(-11, 8, 0), Vector(15, 8, 0)),  # 3
    Part.LineSegment(Vector(-9, -6, 0), Vector(13, -6, 0)),  # 4
    Part.LineSegment(Vector(13, -6, 0), Vector(13, 6, 0)),  # 5
    Part.LineSegment(Vector(13, 6, 0), Vector(-9, 6, 0)),  # 6
    Part.LineSegment(Vector(-9, 6, 0), Vector(-9, -6, 0)),  # 7
], False)
sketch5.addConstraint([
    Sketcher.Constraint("Coincident", 0, 2, 1, 1),
    Sketcher.Constraint("Coincident", 1, 2, 2, 1),
    Sketcher.Constraint("Coincident", 2, 2, 3, 1),
    Sketcher.Constraint("Coincident", 3, 2, 0, 1),
    Sketcher.Constraint("Coincident", 4, 2, 5, 1),
    Sketcher.Constraint("Coincident", 5, 2, 6, 1),
    Sketcher.Constraint("Coincident", 6, 2, 7, 1),
    Sketcher.Constraint("Coincident", 7, 2, 4, 1),
    Sketcher.Constraint("Vertical", 0),
    Sketcher.Constraint("Horizontal", 1),
    Sketcher.Constraint("Vertical", 2),
    Sketcher.Constraint("Horizontal", 3),
    Sketcher.Constraint("Horizontal", 4),
    Sketcher.Constraint("Vertical", 5),
    Sketcher.Constraint("Horizontal", 6),
    Sketcher.Constraint("Vertical", 7),
    Sketcher.Constraint("DistanceX", 4, 1, 4, 2, Q("21.15833 mm")),
    Sketcher.Constraint("DistanceX", 1, 2, 1, 1, Q("25.809875 mm")),
    Sketcher.Constraint("DistanceY", 0, 2, 0, 1, Q("15.757103 mm")),
    Sketcher.Constraint("DistanceY", 5, 1, 5, 2, Q("11.751533 mm")),
    Sketcher.Constraint("DistanceY", 0, 2, -1, 1, Q("7.902921 mm")),
    Sketcher.Constraint("DistanceX", 1, 2, -1, 1, Q("10.837209 mm")),
    Sketcher.Constraint("DistanceX", -1, 1, 4, 2, Q("12.644339 mm")),
    Sketcher.Constraint("DistanceY", -1, 1, 5, 2, Q("5.779331 mm")),
])
pad5 = body.newObject("PartDesign::Pad", "Pad004")
pad5.Profile = sketch5
pad5.Length = 3.5

doc.recompute()
